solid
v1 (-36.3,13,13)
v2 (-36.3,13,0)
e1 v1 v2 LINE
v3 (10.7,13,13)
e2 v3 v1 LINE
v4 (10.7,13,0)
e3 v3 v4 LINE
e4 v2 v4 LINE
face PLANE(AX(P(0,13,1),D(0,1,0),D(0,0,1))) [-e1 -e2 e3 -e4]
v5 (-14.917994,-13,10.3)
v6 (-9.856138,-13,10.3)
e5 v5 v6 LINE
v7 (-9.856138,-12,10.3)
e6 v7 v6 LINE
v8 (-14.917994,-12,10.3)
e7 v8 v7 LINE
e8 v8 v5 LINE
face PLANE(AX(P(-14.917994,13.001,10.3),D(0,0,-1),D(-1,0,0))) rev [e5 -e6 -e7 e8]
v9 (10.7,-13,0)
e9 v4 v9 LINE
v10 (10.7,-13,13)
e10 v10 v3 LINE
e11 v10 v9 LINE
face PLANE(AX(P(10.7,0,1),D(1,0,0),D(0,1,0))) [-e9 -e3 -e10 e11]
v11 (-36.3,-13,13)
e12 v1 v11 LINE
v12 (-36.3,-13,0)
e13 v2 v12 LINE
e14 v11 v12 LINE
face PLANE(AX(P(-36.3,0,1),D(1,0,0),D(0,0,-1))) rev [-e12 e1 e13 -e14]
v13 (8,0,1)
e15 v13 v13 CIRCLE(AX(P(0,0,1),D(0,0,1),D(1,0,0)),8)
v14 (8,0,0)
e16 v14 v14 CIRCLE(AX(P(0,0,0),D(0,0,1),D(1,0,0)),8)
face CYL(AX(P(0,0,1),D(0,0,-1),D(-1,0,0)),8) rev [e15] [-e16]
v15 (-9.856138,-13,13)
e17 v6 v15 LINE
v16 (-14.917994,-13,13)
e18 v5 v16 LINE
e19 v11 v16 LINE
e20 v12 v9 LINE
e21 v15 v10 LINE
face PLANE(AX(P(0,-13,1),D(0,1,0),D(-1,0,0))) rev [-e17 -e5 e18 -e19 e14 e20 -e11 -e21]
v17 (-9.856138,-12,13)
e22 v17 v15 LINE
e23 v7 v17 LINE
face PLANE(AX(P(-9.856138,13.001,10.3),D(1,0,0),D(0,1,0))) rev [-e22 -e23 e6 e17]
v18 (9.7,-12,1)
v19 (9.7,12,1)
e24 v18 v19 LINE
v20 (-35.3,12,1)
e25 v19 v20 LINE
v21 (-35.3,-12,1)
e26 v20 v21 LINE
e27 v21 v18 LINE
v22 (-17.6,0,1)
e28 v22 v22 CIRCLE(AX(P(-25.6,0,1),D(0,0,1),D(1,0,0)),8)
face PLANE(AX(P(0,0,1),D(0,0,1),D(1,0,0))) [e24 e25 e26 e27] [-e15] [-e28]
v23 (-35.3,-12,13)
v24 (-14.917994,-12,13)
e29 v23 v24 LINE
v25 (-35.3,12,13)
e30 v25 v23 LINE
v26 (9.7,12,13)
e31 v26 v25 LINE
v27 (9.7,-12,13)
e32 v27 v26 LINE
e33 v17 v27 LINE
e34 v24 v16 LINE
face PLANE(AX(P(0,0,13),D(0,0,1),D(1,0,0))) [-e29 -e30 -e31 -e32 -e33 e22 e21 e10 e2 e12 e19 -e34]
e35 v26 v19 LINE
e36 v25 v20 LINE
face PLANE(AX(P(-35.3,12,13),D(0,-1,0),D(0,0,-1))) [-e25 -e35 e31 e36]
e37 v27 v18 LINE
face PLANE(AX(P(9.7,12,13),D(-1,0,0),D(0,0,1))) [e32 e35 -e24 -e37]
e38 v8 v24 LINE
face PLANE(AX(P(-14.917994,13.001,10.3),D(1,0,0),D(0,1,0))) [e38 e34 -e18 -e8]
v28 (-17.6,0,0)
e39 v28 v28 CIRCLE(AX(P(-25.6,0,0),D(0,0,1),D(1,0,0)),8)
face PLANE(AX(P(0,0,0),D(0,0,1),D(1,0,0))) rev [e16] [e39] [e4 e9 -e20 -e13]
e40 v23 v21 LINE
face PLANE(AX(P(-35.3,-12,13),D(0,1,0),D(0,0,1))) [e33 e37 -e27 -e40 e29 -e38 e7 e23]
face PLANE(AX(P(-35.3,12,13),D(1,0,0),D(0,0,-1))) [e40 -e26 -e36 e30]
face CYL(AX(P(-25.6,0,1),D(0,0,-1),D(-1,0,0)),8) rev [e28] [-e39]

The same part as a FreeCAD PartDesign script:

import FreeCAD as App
import Part
import Sketcher

doc = App.newDocument("Part")
body = doc.addObject("PartDesign::Body", "Body")

sketch1 = body.newObject("Sketcher::SketchObject", "Sketch")
sketch1.AttachmentSupport = (doc.getObject("XY_Plane"), [""])
sketch1.MapMode = "FlatFace"
sketch1.addGeometry([
    Part.LineSegment(App.Vector(-36.3, 13, 0), App.Vector(-36.3, -13, 0)),
    Part.LineSegment(App.Vector(-36.3, -13, 0), App.Vector(10.7, -13, 0)),
    Part.LineSegment(App.Vector(10.7, -13, 0), App.Vector(10.7, 13, 0)),
    Part.LineSegment(App.Vector(10.7, 13, 0), App.Vector(-36.3, 13, 0)),
    Part.Circle(App.Vector(-25.6, 0, 0), App.Vector(0, 0, 1), 8),
    Part.Circle(App.Vector(0, 0, 0), App.Vector(0, 0, 1), 8),
], False)
sketch1.addConstraint([
    Sketcher.Constraint("Coincident", 0, 2, 1, 1),
    Sketcher.Constraint("Coincident", 1, 2, 2, 1),
    Sketcher.Constraint("Coincident", 2, 2, 3, 1),
    Sketcher.Constraint("Coincident", 3, 2, 0, 1),
    Sketcher.Constraint("Vertical", 0),
    Sketcher.Constraint("Horizontal", 1),
    Sketcher.Constraint("Vertical", 2),
    Sketcher.Constraint("Horizontal", 3),
    Sketcher.Constraint("Coincident", 5, 3, -1, 1),
    Sketcher.Constraint("Equal", 4, 5),
    Sketcher.Constraint("PointOnObject", 4, 3, -1),
    Sketcher.Constraint("Diameter", 4, 16.0),
    Sketcher.Constraint("DistanceX", 1, 1, 1, 2, 47.0),
    Sketcher.Constraint("DistanceY", 0, 2, 0, 1, 26.0),
    Sketcher.Constraint("DistanceY", 0, 2, -1, 1, 13.0),
    Sketcher.Constraint("DistanceX", 4, 3, -1, 1, 25.6),
    Sketcher.Constraint("DistanceX", 0, 2, -1, 1, 36.3),
])
pad1 = body.newObject("PartDesign::Pad", "Pad")
pad1.Profile = sketch1
pad1.Length = 1

sketch2 = body.newObject("Sketcher::SketchObject", "Sketch001")
sketch2.AttachmentSupport = (doc.getObject("XY_Plane"), [""])
sketch2.MapMode = "FlatFace"
sketch2.AttachmentOffset = App.Placement(App.Vector(0, 0, 1), App.Rotation())
sketch2.addGeometry([
    Part.LineSegment(App.Vector(-36.3, 13, 0), App.Vector(-36.3, -13, 0)),
    Part.LineSegment(App.Vector(-36.3, -13, 0), App.Vector(10.7, -13, 0)),
    Part.LineSegment(App.Vector(10.7, -13, 0), App.Vector(10.7, 13, 0)),
    Part.LineSegment(App.Vector(10.7, 13, 0), App.Vector(-36.3, 13, 0)),
    Part.LineSegment(App.Vector(9.7, -12, 0), App.Vector(-35.3, -12, 0)),
    Part.LineSegment(App.Vector(-35.3, -12, 0), App.Vector(-35.3, 12, 0)),
    Part.LineSegment(App.Vector(-35.3, 12, 0), App.Vector(9.7, 12, 0)),
    Part.LineSegment(App.Vector(9.7, 12, 0), App.Vector(9.7, -12, 0)),
], False)
sketch2.addConstraint([
    Sketcher.Constraint("Coincident", 0, 2, 1, 1),
    Sketcher.Constraint("Coincident", 1, 2, 2, 1),
    Sketcher.Constraint("Coincident", 2, 2, 3, 1),
    Sketcher.Constraint("Coincident", 3, 2, 0, 1),
    Sketcher.Constraint("Coincident", 4, 2, 5, 1),
    Sketcher.Constraint("Coincident", 5, 2, 6, 1),
    Sketcher.Constraint("Coincident", 6, 2, 7, 1),
    Sketcher.Constraint("Coincident", 7, 2, 4, 1),
    Sketcher.Constraint("Vertical", 0),
    Sketcher.Constraint("Horizontal", 1),
    Sketcher.Constraint("Vertical", 2),
    Sketcher.Constraint("Horizontal", 3),
    Sketcher.Constraint("Horizontal", 4),
    Sketcher.Constraint("Vertical", 5),
    Sketcher.Constraint("Horizontal", 6),
    Sketcher.Constraint("Vertical", 7),
    Sketcher.Constraint("DistanceX", 1, 1, 1, 2, 47.0),
    Sketcher.Constraint("DistanceX", 4, 2, 4, 1, 45.0),
    Sketcher.Constraint("DistanceY", 0, 2, 0, 1, 26.0),
    Sketcher.Constraint("DistanceY", 5, 1, 5, 2, 24.0),
    Sketcher.Constraint("DistanceY", 0, 2, -1, 1, 13.0),
    Sketcher.Constraint("DistanceY", 4, 2, -1, 1, 12.0),
    Sketcher.Constraint("DistanceX", 0, 2, 4, 2, 1.0),
    Sketcher.Constraint("DistanceX", 0, 2, -1, 1, 36.3),
])
pad2 = body.newObject("PartDesign::Pad", "Pad001")
pad2.Profile = sketch2
pad2.Length = 12

sketch3 = body.newObject("Sketcher::SketchObject", "Sketch002")
sketch3.AttachmentSupport = (doc.getObject("XZ_Plane"), [""])
sketch3.MapMode = "FlatFace"
sketch3.AttachmentOffset = App.Placement(App.Vector(0, 0, 13), App.Rotation())
sketch3.addGeometry([
    Part.LineSegment(App.Vector(-14.917994, 13.426916, 0), App.Vector(-14.917994, 10.3, 0)),
    Part.LineSegment(App.Vector(-14.917994, 10.3, 0), App.Vector(-9.856138, 10.3, 0)),
    Part.LineSegment(App.Vector(-9.856138, 10.3, 0), App.Vector(-9.856138, 13.426916, 0)),
    Part.LineSegment(App.Vector(-9.856138, 13.426916, 0), App.Vector(-14.917994, 13.426916, 0)),
], False)
sketch3.addConstraint([
    Sketcher.Constraint("Coincident", 0, 2, 1, 1),
    Sketcher.Constraint("Coincident", 1, 2, 2, 1),
    Sketcher.Constraint("Coincident", 2, 2, 3, 1),
    Sketcher.Constraint("Coincident", 3, 2, 0, 1),
    Sketcher.Constraint("Vertical", 0),
    Sketcher.Constraint("Horizontal", 1),
    Sketcher.Constraint("Vertical", 2),
    Sketcher.Constraint("Horizontal", 3),
    Sketcher.Constraint("DistanceY", -1, 1, 0, 2, 10.3),
    Sketcher.Constraint("DistanceX", 1, 1, 1, 2, 5.061856),
    Sketcher.Constraint("DistanceY", 0, 2, 0, 1, 3.126916),
    Sketcher.Constraint("DistanceX", 1, 2, -1, 1, 9.856138),
])
pocket1 = body.newObject("PartDesign::Pocket", "Pocket")
pocket1.Profile = sketch3
pocket1.Type = "UpToFirst"

doc.recompute()
